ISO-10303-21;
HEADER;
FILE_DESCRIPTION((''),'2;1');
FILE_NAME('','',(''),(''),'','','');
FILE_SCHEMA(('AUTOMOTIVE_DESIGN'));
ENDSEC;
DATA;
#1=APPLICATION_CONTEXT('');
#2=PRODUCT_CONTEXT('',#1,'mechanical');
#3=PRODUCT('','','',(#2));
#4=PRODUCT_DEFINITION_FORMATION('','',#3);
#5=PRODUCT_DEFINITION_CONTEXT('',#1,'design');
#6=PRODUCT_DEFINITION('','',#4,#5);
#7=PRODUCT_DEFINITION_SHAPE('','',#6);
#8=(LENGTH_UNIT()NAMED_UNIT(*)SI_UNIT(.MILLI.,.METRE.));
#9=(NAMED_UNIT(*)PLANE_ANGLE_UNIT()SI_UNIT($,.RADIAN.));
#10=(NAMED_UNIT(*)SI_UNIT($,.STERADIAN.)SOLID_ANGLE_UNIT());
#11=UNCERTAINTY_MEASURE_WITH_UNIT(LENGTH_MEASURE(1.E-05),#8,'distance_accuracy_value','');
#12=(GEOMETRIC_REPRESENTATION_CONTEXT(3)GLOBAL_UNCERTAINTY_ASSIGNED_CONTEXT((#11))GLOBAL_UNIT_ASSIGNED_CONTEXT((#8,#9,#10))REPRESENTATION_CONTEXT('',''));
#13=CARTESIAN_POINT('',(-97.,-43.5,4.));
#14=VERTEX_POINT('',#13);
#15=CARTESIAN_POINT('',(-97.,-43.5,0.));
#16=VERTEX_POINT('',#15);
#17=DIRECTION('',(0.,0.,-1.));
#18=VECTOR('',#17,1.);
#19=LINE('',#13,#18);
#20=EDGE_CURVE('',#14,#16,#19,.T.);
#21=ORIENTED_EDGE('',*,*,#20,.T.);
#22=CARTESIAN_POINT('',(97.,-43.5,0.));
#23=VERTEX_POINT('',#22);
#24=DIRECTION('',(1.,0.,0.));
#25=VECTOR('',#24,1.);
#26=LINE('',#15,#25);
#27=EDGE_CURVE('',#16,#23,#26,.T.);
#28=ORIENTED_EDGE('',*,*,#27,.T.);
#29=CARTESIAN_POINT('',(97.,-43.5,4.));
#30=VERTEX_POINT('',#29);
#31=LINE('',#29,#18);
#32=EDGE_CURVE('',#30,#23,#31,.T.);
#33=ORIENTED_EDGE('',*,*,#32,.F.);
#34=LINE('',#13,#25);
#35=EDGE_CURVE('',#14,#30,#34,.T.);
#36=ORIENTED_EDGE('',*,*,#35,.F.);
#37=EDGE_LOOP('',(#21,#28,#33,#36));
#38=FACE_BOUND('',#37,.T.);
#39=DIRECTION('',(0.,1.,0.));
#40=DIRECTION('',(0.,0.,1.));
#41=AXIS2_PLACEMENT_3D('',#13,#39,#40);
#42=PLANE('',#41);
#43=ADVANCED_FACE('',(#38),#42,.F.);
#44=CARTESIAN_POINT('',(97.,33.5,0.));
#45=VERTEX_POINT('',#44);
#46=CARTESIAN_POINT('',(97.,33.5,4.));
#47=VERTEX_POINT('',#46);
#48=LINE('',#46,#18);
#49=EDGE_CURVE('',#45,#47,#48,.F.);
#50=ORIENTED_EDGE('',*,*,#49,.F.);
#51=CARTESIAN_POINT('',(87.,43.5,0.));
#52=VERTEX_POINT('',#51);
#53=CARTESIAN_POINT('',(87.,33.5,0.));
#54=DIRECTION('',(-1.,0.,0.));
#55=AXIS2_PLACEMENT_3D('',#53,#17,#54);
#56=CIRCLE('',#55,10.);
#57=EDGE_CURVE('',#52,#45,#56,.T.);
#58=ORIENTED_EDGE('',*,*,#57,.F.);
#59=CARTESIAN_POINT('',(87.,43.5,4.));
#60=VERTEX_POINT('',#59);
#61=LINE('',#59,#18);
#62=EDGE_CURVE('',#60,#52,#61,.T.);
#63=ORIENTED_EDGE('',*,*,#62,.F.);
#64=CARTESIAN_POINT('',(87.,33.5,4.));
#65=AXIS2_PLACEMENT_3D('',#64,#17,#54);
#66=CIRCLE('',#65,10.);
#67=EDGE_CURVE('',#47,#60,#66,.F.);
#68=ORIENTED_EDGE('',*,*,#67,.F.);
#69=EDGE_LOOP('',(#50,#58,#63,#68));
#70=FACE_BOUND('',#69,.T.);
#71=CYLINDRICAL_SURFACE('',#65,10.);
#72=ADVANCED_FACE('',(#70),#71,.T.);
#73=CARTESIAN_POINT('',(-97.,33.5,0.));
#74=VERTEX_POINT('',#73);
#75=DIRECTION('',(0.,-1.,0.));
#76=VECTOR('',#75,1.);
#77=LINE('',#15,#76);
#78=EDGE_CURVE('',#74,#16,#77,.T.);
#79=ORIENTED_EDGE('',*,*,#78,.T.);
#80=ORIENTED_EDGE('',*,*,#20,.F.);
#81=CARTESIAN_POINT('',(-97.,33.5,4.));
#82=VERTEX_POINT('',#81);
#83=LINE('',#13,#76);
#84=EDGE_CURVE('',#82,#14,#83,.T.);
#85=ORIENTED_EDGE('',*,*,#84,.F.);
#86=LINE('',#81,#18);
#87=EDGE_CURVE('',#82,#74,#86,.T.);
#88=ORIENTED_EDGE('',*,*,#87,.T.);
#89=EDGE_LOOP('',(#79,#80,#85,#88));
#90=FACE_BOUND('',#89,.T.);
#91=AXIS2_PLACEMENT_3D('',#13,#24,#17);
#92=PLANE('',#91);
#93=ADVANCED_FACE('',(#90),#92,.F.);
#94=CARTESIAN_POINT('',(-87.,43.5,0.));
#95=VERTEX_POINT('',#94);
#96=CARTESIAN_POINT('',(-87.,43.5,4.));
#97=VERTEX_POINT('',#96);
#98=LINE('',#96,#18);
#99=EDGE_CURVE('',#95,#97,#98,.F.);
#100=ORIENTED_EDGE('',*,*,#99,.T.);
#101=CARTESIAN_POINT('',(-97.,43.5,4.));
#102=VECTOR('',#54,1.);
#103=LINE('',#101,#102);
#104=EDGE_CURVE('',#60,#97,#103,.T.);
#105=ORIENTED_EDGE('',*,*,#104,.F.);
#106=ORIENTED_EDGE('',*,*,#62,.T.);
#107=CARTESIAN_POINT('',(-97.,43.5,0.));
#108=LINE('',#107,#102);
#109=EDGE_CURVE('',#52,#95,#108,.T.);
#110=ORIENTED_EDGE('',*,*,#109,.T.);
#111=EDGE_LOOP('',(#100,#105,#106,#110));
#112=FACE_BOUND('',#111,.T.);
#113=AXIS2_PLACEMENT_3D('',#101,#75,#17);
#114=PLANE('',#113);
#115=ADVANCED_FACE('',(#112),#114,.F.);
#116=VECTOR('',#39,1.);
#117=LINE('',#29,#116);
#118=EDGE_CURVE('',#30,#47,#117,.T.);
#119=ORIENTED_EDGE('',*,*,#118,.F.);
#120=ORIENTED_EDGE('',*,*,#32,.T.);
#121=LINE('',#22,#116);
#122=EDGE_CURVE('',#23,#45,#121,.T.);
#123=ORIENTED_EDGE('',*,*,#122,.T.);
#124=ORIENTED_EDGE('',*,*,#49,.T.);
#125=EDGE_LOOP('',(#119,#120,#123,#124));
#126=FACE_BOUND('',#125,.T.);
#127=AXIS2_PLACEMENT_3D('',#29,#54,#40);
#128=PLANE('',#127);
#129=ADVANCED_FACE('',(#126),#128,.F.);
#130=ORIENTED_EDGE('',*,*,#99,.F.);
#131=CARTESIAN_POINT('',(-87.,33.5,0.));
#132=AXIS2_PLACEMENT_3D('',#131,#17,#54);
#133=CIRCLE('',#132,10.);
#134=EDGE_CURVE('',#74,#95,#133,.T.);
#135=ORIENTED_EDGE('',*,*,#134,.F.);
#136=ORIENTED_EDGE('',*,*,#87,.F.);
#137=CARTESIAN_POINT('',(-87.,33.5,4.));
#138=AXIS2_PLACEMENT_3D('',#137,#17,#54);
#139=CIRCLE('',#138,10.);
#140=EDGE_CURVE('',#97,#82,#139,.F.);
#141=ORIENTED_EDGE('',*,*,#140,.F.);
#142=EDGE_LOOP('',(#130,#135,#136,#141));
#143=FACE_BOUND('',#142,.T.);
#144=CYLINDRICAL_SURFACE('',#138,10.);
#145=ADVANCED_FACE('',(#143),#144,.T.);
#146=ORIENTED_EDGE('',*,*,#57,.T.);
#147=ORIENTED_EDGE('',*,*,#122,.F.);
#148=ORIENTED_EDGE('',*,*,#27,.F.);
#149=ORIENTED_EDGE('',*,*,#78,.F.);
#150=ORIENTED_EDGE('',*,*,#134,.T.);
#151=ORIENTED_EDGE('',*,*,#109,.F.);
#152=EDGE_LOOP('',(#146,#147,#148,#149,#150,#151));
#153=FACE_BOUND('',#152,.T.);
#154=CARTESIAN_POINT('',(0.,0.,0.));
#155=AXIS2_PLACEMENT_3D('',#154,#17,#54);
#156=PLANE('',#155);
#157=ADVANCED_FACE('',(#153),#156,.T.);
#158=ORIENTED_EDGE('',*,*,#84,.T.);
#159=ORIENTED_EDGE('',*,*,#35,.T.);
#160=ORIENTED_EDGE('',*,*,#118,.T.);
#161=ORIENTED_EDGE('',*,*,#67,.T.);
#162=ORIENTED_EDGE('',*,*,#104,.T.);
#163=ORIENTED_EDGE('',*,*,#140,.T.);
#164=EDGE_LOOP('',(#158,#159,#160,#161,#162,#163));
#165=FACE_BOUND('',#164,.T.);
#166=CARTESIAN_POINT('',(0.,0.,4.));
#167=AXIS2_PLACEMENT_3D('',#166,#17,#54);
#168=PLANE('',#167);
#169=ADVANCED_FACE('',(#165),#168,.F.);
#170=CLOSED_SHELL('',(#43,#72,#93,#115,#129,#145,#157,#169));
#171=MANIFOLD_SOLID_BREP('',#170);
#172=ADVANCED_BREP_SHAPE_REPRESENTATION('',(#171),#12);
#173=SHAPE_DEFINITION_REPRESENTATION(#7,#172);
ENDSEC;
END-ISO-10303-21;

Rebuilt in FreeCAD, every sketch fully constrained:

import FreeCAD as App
import Part
import Sketcher

V = App.Vector
Q = App.Units.Quantity


def edges_at(feature, points):
    """Names of the edges that pass closest to the given points."""
    edges = feature.Shape.Edges
    near = lambda p: min(range(len(edges)), key=lambda i: edges[i].distToShape(Part.Vertex(*p))[0])
    return sorted({f"Edge{near(p) + 1}" for p in points})


def add_polygon(sketch, points):
    """Adds a closed chain of lines whose ends are joined by coincident constraints."""
    first, n = sketch.GeometryCount, len(points)
    for a, b in zip(points, points[1:] + points[:1]):
        sketch.addGeometry(Part.LineSegment(App.Vector(*a, 0), App.Vector(*b, 0)), False)
    for i in range(n):
        sketch.addConstraint(Sketcher.Constraint("Coincident", first + i, 2, first + (i + 1) % n, 1))

doc = App.newDocument("Part")
body = doc.addObject("PartDesign::Body", "Body")

sketch1 = body.newObject("Sketcher::SketchObject", "Sketch")
sketch1.AttachmentSupport = (doc.getObject("XY_Plane"), [""])
sketch1.MapMode = "FlatFace"
add_polygon(sketch1, [(-97, 44), (-97, -44), (97, -44), (97, 44)])
sketch1.addConstraint([
    Sketcher.Constraint("Vertical", 0),
    Sketcher.Constraint("Horizontal", 1),
    Sketcher.Constraint("Vertical", 2),
    Sketcher.Constraint("Horizontal", 3),
    Sketcher.Constraint("Symmetric", 0, 2, 2, 2, -1, 1),
    Sketcher.Constraint("DistanceX", 1, 1, 1, 2, Q("194 mm")),
    Sketcher.Constraint("DistanceY", 0, 2, 0, 1, Q("87 mm")),
])
pad1 = body.newObject("PartDesign::Pad", "Pad")
pad1.Profile = sketch1
pad1.Length = 4
doc.recompute()

fillet = body.newObject("PartDesign::Fillet", "Fillet")
fillet.Base = (pad1, edges_at(pad1, [(-97, 43.5, 2), (97, 43.5, 2)]))
fillet.Radius = 10

doc.recompute()
